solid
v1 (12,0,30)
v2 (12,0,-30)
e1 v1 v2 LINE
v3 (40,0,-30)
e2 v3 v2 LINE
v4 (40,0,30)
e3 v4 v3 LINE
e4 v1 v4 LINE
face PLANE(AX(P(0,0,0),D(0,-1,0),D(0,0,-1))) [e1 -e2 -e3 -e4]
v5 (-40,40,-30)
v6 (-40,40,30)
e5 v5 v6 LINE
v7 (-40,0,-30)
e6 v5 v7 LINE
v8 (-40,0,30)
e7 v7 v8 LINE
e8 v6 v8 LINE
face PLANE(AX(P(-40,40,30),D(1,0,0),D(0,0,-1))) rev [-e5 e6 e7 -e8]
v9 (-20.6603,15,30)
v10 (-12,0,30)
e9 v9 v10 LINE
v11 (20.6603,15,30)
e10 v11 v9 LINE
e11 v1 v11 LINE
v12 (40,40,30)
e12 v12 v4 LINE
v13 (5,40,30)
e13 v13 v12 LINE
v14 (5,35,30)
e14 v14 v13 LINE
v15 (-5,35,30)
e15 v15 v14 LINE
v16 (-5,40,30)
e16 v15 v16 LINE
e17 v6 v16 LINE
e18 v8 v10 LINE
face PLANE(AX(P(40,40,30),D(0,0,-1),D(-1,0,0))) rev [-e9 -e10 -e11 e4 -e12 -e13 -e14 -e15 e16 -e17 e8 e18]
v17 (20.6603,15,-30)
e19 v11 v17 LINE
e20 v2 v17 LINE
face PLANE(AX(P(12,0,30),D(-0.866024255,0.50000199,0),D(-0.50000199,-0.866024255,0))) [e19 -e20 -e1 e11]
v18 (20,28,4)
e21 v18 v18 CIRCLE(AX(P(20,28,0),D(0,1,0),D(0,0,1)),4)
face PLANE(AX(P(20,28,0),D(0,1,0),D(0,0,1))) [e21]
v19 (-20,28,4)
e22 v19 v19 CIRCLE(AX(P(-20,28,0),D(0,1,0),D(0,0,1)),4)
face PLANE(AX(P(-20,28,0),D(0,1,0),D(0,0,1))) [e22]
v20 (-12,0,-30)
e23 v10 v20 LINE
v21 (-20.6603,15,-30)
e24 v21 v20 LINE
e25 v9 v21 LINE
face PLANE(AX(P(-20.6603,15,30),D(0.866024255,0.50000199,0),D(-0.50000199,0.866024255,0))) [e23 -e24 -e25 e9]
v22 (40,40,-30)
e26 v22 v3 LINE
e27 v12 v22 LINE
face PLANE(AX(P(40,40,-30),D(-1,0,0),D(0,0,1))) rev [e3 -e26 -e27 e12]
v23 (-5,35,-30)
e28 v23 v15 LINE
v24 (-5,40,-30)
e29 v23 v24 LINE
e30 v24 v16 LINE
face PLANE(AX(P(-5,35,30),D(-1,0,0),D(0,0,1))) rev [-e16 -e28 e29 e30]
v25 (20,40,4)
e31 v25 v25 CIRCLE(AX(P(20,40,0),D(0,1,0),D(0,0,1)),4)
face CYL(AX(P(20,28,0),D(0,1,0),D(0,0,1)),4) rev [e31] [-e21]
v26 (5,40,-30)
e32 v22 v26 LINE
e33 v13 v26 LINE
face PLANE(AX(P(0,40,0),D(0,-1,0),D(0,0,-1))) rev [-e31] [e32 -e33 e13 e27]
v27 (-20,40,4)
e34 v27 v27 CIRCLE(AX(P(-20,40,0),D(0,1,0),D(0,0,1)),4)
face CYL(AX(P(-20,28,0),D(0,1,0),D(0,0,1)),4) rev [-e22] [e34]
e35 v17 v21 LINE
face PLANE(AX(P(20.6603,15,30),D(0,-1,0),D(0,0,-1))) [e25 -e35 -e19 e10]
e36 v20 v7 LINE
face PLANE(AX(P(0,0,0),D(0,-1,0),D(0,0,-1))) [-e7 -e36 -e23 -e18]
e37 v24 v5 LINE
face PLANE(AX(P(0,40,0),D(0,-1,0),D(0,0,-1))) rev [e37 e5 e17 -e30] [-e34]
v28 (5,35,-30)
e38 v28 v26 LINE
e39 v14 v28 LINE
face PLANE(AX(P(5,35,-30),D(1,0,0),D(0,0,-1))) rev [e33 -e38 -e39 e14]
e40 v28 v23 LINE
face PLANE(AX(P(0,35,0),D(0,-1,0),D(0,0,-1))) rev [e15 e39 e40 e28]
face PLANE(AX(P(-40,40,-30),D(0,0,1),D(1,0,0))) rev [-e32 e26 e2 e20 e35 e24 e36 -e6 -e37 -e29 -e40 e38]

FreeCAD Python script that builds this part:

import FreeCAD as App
import Part
import Sketcher

V = App.Vector
Q = App.Units.Quantity

doc = App.newDocument("Part")
body = doc.addObject("PartDesign::Body", "Body")

sketch1 = body.newObject("Sketcher::SketchObject", "Sketch")
sketch1.AttachmentSupport = (doc.getObject("XZ_Plane"), [""])
sketch1.MapMode = "FlatFace"
sketch1.addGeometry([
    Part.LineSegment(V(-40, -30, 0), V(-40, 30, 0)),
    Part.LineSegment(V(-40, 30, 0), V(40, 30, 0)),
    Part.LineSegment(V(40, 30, 0), V(40, -30, 0)),
    Part.LineSegment(V(40, -30, 0), V(-40, -30, 0)),
], False)
sketch1.addConstraint([
    Sketcher.Constraint("Coincident", 0, 2, 1, 1),
    Sketcher.Constraint("Coincident", 1, 2, 2, 1),
    Sketcher.Constraint("Coincident", 2, 2, 3, 1),
    Sketcher.Constraint("Coincident", 3, 2, 0, 1),
    Sketcher.Constraint("Vertical", 0),
    Sketcher.Constraint("Horizontal", 1),
    Sketcher.Constraint("Vertical", 2),
    Sketcher.Constraint("Horizontal", 3),
    Sketcher.Constraint("Symmetric", 0, 2, 2, 2, -1, 1),
    Sketcher.Constraint("DistanceX", 1, 1, 1, 2, Q("80 mm")),
    Sketcher.Constraint("DistanceY", 0, 1, 0, 2, Q("60 mm")),
])
pad1 = body.newObject("PartDesign::Pad", "Pad")
pad1.Profile = sketch1
pad1.Length = 40
pad1.Reversed = True

sketch2 = body.newObject("Sketcher::SketchObject", "Sketch001")
sketch2.AttachmentSupport = (doc.getObject("XY_Plane"), [""])
sketch2.MapMode = "FlatFace"
sketch2.addGeometry([
    Part.LineSegment(V(-12, 0, 0), V(12, 0, 0)),
    Part.LineSegment(V(12, 0, 0), V(20.6603, 15, 0)),
    Part.LineSegment(V(20.6603, 15, 0), V(-20.6603, 15, 0)),
    Part.LineSegment(V(-20.6603, 15, 0), V(-12, 0, 0)),
], False)
sketch2.addConstraint([
    Sketcher.Constraint("Coincident", 0, 2, 1, 1),
    Sketcher.Constraint("Coincident", 1, 2, 2, 1),
    Sketcher.Constraint("Coincident", 2, 2, 3, 1),
    Sketcher.Constraint("Coincident", 3, 2, 0, 1),
    Sketcher.Constraint("Horizontal", 0),
    Sketcher.Constraint("Horizontal", 2),
    Sketcher.Constraint("Symmetric", 0, 2, 3, 2, -1, 1),
    Sketcher.Constraint("Equal", 1, 3),
    Sketcher.Constraint("DistanceX", 0, 1, 0, 2, Q("24 mm")),
    Sketcher.Constraint("DistanceY", -1, 1, 1, 2, Q("15 mm")),
    Sketcher.Constraint("DistanceX", 2, 2, 2, 1, Q("41.3206 mm")),
])
pocket1 = body.newObject("PartDesign::Pocket", "Pocket")
pocket1.Profile = sketch2
pocket1.Type = "ThroughAll"
pocket1.Reversed = True

sketch3 = body.newObject("Sketcher::SketchObject", "Sketch002")
sketch3.AttachmentSupport = (doc.getObject("XY_Plane"), [""])
sketch3.MapMode = "FlatFace"
sketch3.addGeometry([
    Part.LineSegment(V(-12, 0, 0), V(12, 0, 0)),
    Part.LineSegment(V(12, 0, 0), V(20.6603, 15, 0)),
    Part.LineSegment(V(20.6603, 15, 0), V(-20.6603, 15, 0)),
    Part.LineSegment(V(-20.6603, 15, 0), V(-12, 0, 0)),
], False)
sketch3.addConstraint([
    Sketcher.Constraint("Coincident", 0, 2, 1, 1),
    Sketcher.Constraint("Coincident", 1, 2, 2, 1),
    Sketcher.Constraint("Coincident", 2, 2, 3, 1),
    Sketcher.Constraint("Coincident", 3, 2, 0, 1),
    Sketcher.Constraint("Horizontal", 0),
    Sketcher.Constraint("Horizontal", 2),
    Sketcher.Constraint("Symmetric", 0, 2, 3, 2, -1, 1),
    Sketcher.Constraint("Equal", 1, 3),
    Sketcher.Constraint("DistanceX", 0, 1, 0, 2, Q("24 mm")),
    Sketcher.Constraint("DistanceY", -1, 1, 1, 2, Q("15 mm")),
    Sketcher.Constraint("DistanceX", 2, 2, 2, 1, Q("41.3206 mm")),
])
pocket2 = body.newObject("PartDesign::Pocket", "Pocket001")
pocket2.Profile = sketch3
pocket2.Type = "ThroughAll"

sketch4 = body.newObject("Sketcher::SketchObject", "Sketch003")
sketch4.AttachmentSupport = (doc.getObject("XZ_Plane"), [""])
sketch4.MapMode = "FlatFace"
sketch4.AttachmentOffset = App.Placement(V(0, 0, -40), App.Rotation())
sketch4.addGeometry([
    Part.LineSegment(V(-5, -30, 0), V(-5, 30, 0)),
    Part.LineSegment(V(-5, 30, 0), V(5, 30, 0)),
    Part.LineSegment(V(5, 30, 0), V(5, -30, 0)),
    Part.LineSegment(V(5, -30, 0), V(-5, -30, 0)),
], False)
sketch4.addConstraint([
    Sketcher.Constraint("Coincident", 0, 2, 1, 1),
    Sketcher.Constraint("Coincident", 1, 2, 2, 1),
    Sketcher.Constraint("Coincident", 2, 2, 3, 1),
    Sketcher.Constraint("Coincident", 3, 2, 0, 1),
    Sketcher.Constraint("Vertical", 0),
    Sketcher.Constraint("Horizontal", 1),
    Sketcher.Constraint("Vertical", 2),
    Sketcher.Constraint("Horizontal", 3),
    Sketcher.Constraint("Symmetric", 0, 2, 2, 2, -1, 1),
    Sketcher.Constraint("DistanceX", 1, 1, 1, 2, Q("10 mm")),
    Sketcher.Constraint("DistanceY", 0, 1, 0, 2, Q("60 mm")),
])
pocket3 = body.newObject("PartDesign::Pocket", "Pocket002")
pocket3.Profile = sketch4
pocket3.Length = 5
pocket3.Reversed = True

sketch5 = body.newObject("Sketcher::SketchObject", "Sketch004")
sketch5.AttachmentSupport = (doc.getObject("XZ_Plane"), [""])
sketch5.MapMode = "FlatFace"
sketch5.AttachmentOffset = App.Placement(V(0, 0, -40), App.Rotation())
sketch5.addGeometry([
    Part.Circle(V(-20, 0, 0), V(0, 0, 1), 4),
    Part.Circle(V(20, 0, 0), V(0, 0, 1), 4),
], False)
sketch5.addConstraint([
    Sketcher.Constraint("Equal", 0, 1),
    Sketcher.Constraint("Symmetric", 0, 3, 1, 3, -1, 1),
    Sketcher.Constraint("PointOnObject", 0, 3, -1),
    Sketcher.Constraint("Diameter", 0, Q("8 mm")),
    Sketcher.Constraint("DistanceX", 0, 3, -1, 1, Q("20 mm")),
])
pocket4 = body.newObject("PartDesign::Pocket", "Pocket003")
pocket4.Profile = sketch5
pocket4.Length = 12
pocket4.Reversed = True

doc.recompute()
